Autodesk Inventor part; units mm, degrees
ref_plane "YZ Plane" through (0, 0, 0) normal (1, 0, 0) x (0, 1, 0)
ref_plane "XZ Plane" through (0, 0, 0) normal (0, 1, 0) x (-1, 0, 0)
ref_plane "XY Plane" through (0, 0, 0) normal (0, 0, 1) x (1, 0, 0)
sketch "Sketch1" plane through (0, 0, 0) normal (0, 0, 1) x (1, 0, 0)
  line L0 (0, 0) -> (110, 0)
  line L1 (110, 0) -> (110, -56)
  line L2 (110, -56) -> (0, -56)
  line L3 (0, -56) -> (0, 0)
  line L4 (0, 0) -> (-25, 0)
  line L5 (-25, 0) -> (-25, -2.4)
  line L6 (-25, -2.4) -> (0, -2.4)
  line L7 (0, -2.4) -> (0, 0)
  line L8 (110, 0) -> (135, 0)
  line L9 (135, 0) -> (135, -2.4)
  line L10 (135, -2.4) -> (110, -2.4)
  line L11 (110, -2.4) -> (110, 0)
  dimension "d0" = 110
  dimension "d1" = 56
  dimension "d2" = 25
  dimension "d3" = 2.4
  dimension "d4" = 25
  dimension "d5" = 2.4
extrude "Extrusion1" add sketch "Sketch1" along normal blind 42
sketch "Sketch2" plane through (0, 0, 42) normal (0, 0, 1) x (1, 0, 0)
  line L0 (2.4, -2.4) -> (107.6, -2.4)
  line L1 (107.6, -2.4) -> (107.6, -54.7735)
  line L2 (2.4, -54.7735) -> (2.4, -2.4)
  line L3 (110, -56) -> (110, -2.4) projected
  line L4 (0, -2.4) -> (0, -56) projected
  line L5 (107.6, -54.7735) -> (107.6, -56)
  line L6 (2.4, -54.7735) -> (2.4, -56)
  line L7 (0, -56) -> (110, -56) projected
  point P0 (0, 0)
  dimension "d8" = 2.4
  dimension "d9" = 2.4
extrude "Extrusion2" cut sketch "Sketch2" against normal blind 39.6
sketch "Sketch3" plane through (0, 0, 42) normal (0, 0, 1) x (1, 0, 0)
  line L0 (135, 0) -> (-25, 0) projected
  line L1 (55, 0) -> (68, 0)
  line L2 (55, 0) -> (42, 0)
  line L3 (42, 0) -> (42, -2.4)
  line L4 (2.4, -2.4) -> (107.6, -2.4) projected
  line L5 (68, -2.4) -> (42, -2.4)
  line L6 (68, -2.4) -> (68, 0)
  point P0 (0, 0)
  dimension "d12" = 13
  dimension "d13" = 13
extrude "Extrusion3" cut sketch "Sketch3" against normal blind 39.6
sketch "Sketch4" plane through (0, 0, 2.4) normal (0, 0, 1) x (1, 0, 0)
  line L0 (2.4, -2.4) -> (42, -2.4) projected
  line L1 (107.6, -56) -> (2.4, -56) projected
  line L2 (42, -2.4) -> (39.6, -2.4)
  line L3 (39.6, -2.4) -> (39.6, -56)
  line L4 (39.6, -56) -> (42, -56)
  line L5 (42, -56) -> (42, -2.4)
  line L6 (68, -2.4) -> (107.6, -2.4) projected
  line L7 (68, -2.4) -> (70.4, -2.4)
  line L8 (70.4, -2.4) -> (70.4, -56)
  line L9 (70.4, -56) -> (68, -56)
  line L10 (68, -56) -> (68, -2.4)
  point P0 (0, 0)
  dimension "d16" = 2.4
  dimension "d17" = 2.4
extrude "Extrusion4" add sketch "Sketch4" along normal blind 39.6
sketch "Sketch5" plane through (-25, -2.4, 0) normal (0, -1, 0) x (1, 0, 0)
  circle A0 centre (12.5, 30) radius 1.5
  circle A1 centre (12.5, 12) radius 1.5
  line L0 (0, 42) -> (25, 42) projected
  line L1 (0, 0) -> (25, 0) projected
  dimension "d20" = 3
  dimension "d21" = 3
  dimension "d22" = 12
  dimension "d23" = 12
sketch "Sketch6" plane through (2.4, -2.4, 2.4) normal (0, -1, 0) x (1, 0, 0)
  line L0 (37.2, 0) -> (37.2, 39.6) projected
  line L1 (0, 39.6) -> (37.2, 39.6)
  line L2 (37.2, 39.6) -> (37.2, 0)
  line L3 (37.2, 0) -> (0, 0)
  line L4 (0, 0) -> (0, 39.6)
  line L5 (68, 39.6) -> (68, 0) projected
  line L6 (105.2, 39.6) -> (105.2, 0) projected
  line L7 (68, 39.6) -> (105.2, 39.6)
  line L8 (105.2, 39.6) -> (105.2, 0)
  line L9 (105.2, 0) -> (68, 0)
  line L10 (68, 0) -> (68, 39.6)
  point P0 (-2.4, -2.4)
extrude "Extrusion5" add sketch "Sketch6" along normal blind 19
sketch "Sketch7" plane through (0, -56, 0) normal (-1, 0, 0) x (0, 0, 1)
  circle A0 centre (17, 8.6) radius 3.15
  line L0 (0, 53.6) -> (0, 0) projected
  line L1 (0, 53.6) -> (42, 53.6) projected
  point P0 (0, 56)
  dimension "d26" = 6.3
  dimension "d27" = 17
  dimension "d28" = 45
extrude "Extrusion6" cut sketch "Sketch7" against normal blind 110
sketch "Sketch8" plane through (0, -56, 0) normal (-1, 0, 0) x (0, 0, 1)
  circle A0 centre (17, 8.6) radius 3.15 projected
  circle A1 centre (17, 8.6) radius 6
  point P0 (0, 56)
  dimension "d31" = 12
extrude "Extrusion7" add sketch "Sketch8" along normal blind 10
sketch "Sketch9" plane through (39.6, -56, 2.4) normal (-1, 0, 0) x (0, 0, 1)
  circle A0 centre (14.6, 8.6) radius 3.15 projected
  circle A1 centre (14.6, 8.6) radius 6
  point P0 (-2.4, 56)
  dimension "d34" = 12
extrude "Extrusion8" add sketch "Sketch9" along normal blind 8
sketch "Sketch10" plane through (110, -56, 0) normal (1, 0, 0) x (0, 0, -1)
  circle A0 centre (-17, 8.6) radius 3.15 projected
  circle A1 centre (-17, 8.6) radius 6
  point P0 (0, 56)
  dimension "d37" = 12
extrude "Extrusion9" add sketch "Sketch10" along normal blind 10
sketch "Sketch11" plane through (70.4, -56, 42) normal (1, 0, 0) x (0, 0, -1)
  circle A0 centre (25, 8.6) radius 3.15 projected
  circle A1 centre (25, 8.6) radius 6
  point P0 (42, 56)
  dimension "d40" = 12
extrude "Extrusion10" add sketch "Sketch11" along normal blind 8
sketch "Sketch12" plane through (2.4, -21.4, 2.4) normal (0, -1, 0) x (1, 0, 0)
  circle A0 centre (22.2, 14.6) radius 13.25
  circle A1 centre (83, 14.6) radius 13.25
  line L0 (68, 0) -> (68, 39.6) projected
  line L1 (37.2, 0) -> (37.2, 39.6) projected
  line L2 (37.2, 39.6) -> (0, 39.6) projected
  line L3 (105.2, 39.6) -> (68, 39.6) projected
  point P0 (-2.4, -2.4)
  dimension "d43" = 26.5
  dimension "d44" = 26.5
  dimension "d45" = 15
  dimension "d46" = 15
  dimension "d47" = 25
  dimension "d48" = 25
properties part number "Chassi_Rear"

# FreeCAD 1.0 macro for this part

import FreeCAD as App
import Part
import Sketcher

doc = App.newDocument("Part")
body = doc.addObject("PartDesign::Body", "Body")

sketch1 = body.newObject("Sketcher::SketchObject", "Sketch")
sketch1.AttachmentSupport = (doc.getObject("XY_Plane"), [""])
sketch1.MapMode = "FlatFace"
sketch1.addGeometry([
    Part.LineSegment(App.Vector(-25, 0, 0), App.Vector(-25, -2.4, 0)),
    Part.LineSegment(App.Vector(-25, -2.4, 0), App.Vector(0, -2.4, 0)),
    Part.LineSegment(App.Vector(0, -2.4, 0), App.Vector(0, -56, 0)),
    Part.LineSegment(App.Vector(0, -56, 0), App.Vector(110, -56, 0)),
    Part.LineSegment(App.Vector(110, -56, 0), App.Vector(110, -2.4, 0)),
    Part.LineSegment(App.Vector(110, -2.4, 0), App.Vector(135, -2.4, 0)),
    Part.LineSegment(App.Vector(135, -2.4, 0), App.Vector(135, 0, 0)),
    Part.LineSegment(App.Vector(135, 0, 0), App.Vector(-25, 0, 0)),
], False)
sketch1.addConstraint([
    Sketcher.Constraint("Coincident", 0, 2, 1, 1),
    Sketcher.Constraint("Coincident", 1, 2, 2, 1),
    Sketcher.Constraint("Coincident", 2, 2, 3, 1),
    Sketcher.Constraint("Coincident", 3, 2, 4, 1),
    Sketcher.Constraint("Coincident", 4, 2, 5, 1),
    Sketcher.Constraint("Coincident", 5, 2, 6, 1),
    Sketcher.Constraint("Coincident", 6, 2, 7, 1),
    Sketcher.Constraint("Coincident", 7, 2, 0, 1),
    Sketcher.Constraint("Vertical", 0),
    Sketcher.Constraint("Horizontal", 1),
    Sketcher.Constraint("Vertical", 2),
    Sketcher.Constraint("Horizontal", 3),
    Sketcher.Constraint("Vertical", 4),
    Sketcher.Constraint("Horizontal", 5),
    Sketcher.Constraint("Vertical", 6),
    Sketcher.Constraint("Horizontal", 7),
    Sketcher.Constraint("PointOnObject", 1, 2, -2),
    Sketcher.Constraint("PointOnObject", 6, 2, -1),
    Sketcher.Constraint("Horizontal", 1, 2, 4, 2),
    Sketcher.Constraint("Equal", 1, 5),
    Sketcher.Constraint("DistanceX", 1, 1, 1, 2, 25.0),
    Sketcher.Constraint("DistanceX", 3, 1, 3, 2, 110.0),
    Sketcher.Constraint("DistanceY", 0, 2, 0, 1, 2.4),
    Sketcher.Constraint("DistanceY", 2, 2, -1, 1, 56.0),
])
pad1 = body.newObject("PartDesign::Pad", "Pad")
pad1.Profile = sketch1
pad1.Length = 42

sketch2 = body.newObject("Sketcher::SketchObject", "Sketch001")
sketch2.AttachmentSupport = (doc.getObject("XY_Plane"), [""])
sketch2.MapMode = "FlatFace"
sketch2.AttachmentOffset = App.Placement(App.Vector(0, 0, 42), App.Rotation())
sketch2.addGeometry([
    Part.LineSegment(App.Vector(108, -2, 0), App.Vector(2, -2, 0)),
    Part.LineSegment(App.Vector(2, -2, 0), App.Vector(2, -56, 0)),
    Part.LineSegment(App.Vector(2, -56, 0), App.Vector(108, -56, 0)),
    Part.LineSegment(App.Vector(108, -56, 0), App.Vector(108, -2, 0)),
], False)
sketch2.addConstraint([
    Sketcher.Constraint("Coincident", 0, 2, 1, 1),
    Sketcher.Constraint("Coincident", 1, 2, 2, 1),
    Sketcher.Constraint("Coincident", 2, 2, 3, 1),
    Sketcher.Constraint("Coincident", 3, 2, 0, 1),
    Sketcher.Constraint("Horizontal", 0),
    Sketcher.Constraint("Vertical", 1),
    Sketcher.Constraint("Horizontal", 2),
    Sketcher.Constraint("Vertical", 3),
    Sketcher.Constraint("DistanceX", -1, 1, 0, 2, 2.4),
    Sketcher.Constraint("DistanceY", 0, 2, -1, 1, 2.4),
    Sketcher.Constraint("DistanceX", 0, 2, 0, 1, 105.2),
    Sketcher.Constraint("DistanceY", 1, 2, 1, 1, 53.6),
])
pocket1 = body.newObject("PartDesign::Pocket", "Pocket")
pocket1.Profile = sketch2
pocket1.Length = 39.6

sketch3 = body.newObject("Sketcher::SketchObject", "Sketch002")
sketch3.AttachmentSupport = (doc.getObject("XY_Plane"), [""])
sketch3.MapMode = "FlatFace"
sketch3.AttachmentOffset = App.Placement(App.Vector(0, 0, 42), App.Rotation())
sketch3.addGeometry([
    Part.LineSegment(App.Vector(68, -2.4, 0), App.Vector(68, 0, 0)),
    Part.LineSegment(App.Vector(68, 0, 0), App.Vector(42, 0, 0)),
    Part.LineSegment(App.Vector(42, 0, 0), App.Vector(42, -2.4, 0)),
    Part.LineSegment(App.Vector(42, -2.4, 0), App.Vector(68, -2.4, 0)),
], False)
sketch3.addConstraint([
    Sketcher.Constraint("Coincident", 0, 2, 1, 1),
    Sketcher.Constraint("Coincident", 1, 2, 2, 1),
    Sketcher.Constraint("Coincident", 2, 2, 3, 1),
    Sketcher.Constraint("Coincident", 3, 2, 0, 1),
    Sketcher.Constraint("Vertical", 0),
    Sketcher.Constraint("Horizontal", 1),
    Sketcher.Constraint("Vertical", 2),
    Sketcher.Constraint("Horizontal", 3),
    Sketcher.Constraint("PointOnObject", 0, 2, -1),
    Sketcher.Constraint("DistanceX", 1, 2, 1, 1, 26.0),
    Sketcher.Constraint("DistanceY", 0, 1, 0, 2, 2.4),
    Sketcher.Constraint("DistanceX", -1, 1, 0, 2, 68.0),
])
pocket2 = body.newObject("PartDesign::Pocket", "Pocket001")
pocket2.Profile = sketch3
pocket2.Length = 39.6

sketch4 = body.newObject("Sketcher::SketchObject", "Sketch003")
sketch4.AttachmentSupport = (doc.getObject("XY_Plane"), [""])
sketch4.MapMode = "FlatFace"
sketch4.AttachmentOffset = App.Placement(App.Vector(0, 0, 2.4), App.Rotation())
sketch4.addGeometry([
    Part.LineSegment(App.Vector(68, -2.4, 0), App.Vector(68, -56, 0)),
    Part.LineSegment(App.Vector(68, -56, 0), App.Vector(70.4, -56, 0)),
    Part.LineSegment(App.Vector(70.4, -56, 0), App.Vector(70.4, -2.4, 0)),
    Part.LineSegment(App.Vector(70.4, -2.4, 0), App.Vector(68, -2.4, 0)),
    Part.LineSegment(App.Vector(42, -2.4, 0), App.Vector(39.6, -2.4, 0)),
    Part.LineSegment(App.Vector(39.6, -2.4, 0), App.Vector(39.6, -56, 0)),
    Part.LineSegment(App.Vector(39.6, -56, 0), App.Vector(42, -56, 0)),
    Part.LineSegment(App.Vector(42, -56, 0), App.Vector(42, -2.4, 0)),
], False)
sketch4.addConstraint([
    Sketcher.Constraint("Coincident", 0, 2, 1, 1),
    Sketcher.Constraint("Coincident", 1, 2, 2, 1),
    Sketcher.Constraint("Coincident", 2, 2, 3, 1),
    Sketcher.Constraint("Coincident", 3, 2, 0, 1),
    Sketcher.Constraint("Coincident", 4, 2, 5, 1),
    Sketcher.Constraint("Coincident", 5, 2, 6, 1),
    Sketcher.Constraint("Coincident", 6, 2, 7, 1),
    Sketcher.Constraint("Coincident", 7, 2, 4, 1),
    Sketcher.Constraint("Vertical", 0),
    Sketcher.Constraint("Horizontal", 1),
    Sketcher.Constraint("Vertical", 2),
    Sketcher.Constraint("Horizontal", 3),
    Sketcher.Constraint("Horizontal", 4),
    Sketcher.Constraint("Vertical", 5),
    Sketcher.Constraint("Horizontal", 6),
    Sketcher.Constraint("Vertical", 7),
    Sketcher.Constraint("Horizontal", 3, 2, 4, 2),
    Sketcher.Constraint("Horizontal", 1, 2, 5, 2),
    Sketcher.Constraint("Equal", 3, 4),
    Sketcher.Constraint("DistanceX", 1, 1, 1, 2, 2.4),
    Sketcher.Constraint("DistanceY", 2, 2, -1, 1, 2.4),
    Sketcher.Constraint("DistanceY", 0, 2, 0, 1, 53.6),
    Sketcher.Constraint("DistanceX", -1, 1, 0, 2, 68.0),
    Sketcher.Constraint("DistanceX", -1, 1, 6, 2, 42.0),
])
pad2 = body.newObject("PartDesign::Pad", "Pad001")
pad2.Profile = sketch4
pad2.Length = 39.6

sketch5 = body.newObject("Sketcher::SketchObject", "Sketch004")
sketch5.AttachmentSupport = (doc.getObject("XZ_Plane"), [""])
sketch5.MapMode = "FlatFace"
sketch5.AttachmentOffset = App.Placement(App.Vector(0, 0, 2.4), App.Rotation())
sketch5.addGeometry([
    Part.LineSegment(App.Vector(2, 2, 0), App.Vector(40, 2, 0)),
    Part.LineSegment(App.Vector(40, 2, 0), App.Vector(40, 42, 0)),
    Part.LineSegment(App.Vector(40, 42, 0), App.Vector(2, 42, 0)),
    Part.LineSegment(App.Vector(2, 42, 0), App.Vector(2, 2, 0)),
    Part.LineSegment(App.Vector(108, 42, 0), App.Vector(70, 42, 0)),
    Part.LineSegment(App.Vector(70, 42, 0), App.Vector(70, 2, 0)),
    Part.LineSegment(App.Vector(70, 2, 0), App.Vector(108, 2, 0)),
    Part.LineSegment(App.Vector(108, 2, 0), App.Vector(108, 42, 0)),
], False)
sketch5.addConstraint([
    Sketcher.Constraint("Coincident", 0, 2, 1, 1),
    Sketcher.Constraint("Coincident", 1, 2, 2, 1),
    Sketcher.Constraint("Coincident", 2, 2, 3, 1),
    Sketcher.Constraint("Coincident", 3, 2, 0, 1),
    Sketcher.Constraint("Coincident", 4, 2, 5, 1),
    Sketcher.Constraint("Coincident", 5, 2, 6, 1),
    Sketcher.Constraint("Coincident", 6, 2, 7, 1),
    Sketcher.Constraint("Coincident", 7, 2, 4, 1),
    Sketcher.Constraint("Horizontal", 0),
    Sketcher.Constraint("Vertical", 1),
    Sketcher.Constraint("Horizontal", 2),
    Sketcher.Constraint("Vertical", 3),
    Sketcher.Constraint("Horizontal", 4),
    Sketcher.Constraint("Vertical", 5),
    Sketcher.Constraint("Horizontal", 6),
    Sketcher.Constraint("Vertical", 7),
    Sketcher.Constraint("Horizontal", 2, 2, 4, 2),
    Sketcher.Constraint("Horizontal", 3, 2, 5, 2),
    Sketcher.Constraint("Equal", 2, 4),
    Sketcher.Constraint("DistanceX", 0, 1, 0, 2, 37.2),
    Sketcher.Constraint("DistanceY", 1, 1, 1, 2, 39.6),
    Sketcher.Constraint("DistanceY", -1, 1, 1, 2, 42.0),
    Sketcher.Constraint("DistanceX", 2, 2, 4, 2, 68.0),
    Sketcher.Constraint("DistanceX", -1, 1, 0, 2, 39.6),
])
pad3 = body.newObject("PartDesign::Pad", "Pad002")
pad3.Profile = sketch5
pad3.Length = 19

sketch6 = body.newObject("Sketcher::SketchObject", "Sketch005")
sketch6.AttachmentSupport = (doc.getObject("YZ_Plane"), [""])
sketch6.MapMode = "FlatFace"
sketch6.addGeometry(Part.Circle(App.Vector(-47.4, 17, 0), App.Vector(0, 0, 1), 3.1), False)
sketch6.addConstraint([
    Sketcher.Constraint("Diameter", 0, 6.3),
    Sketcher.Constraint("DistanceY", -1, 1, 0, 3, 17.0),
    Sketcher.Constraint("DistanceX", 0, 3, -1, 1, 47.4),
])
pocket3 = body.newObject("PartDesign::Pocket", "Pocket002")
pocket3.Profile = sketch6
pocket3.Length = 110
pocket3.Reversed = True

sketch7 = body.newObject("Sketcher::SketchObject", "Sketch006")
sketch7.AttachmentSupport = (doc.getObject("YZ_Plane"), [""])
sketch7.MapMode = "FlatFace"
sketch7.addGeometry([
    Part.Circle(App.Vector(-47.4, 17, 0), App.Vector(0, 0, 1), 6),
    Part.Circle(App.Vector(-47.4, 17, 0), App.Vector(0, 0, 1), 3.1),
], False)
sketch7.addConstraint([
    Sketcher.Constraint("Coincident", 1, 3, 0, 3),
    Sketcher.Constraint("Diameter", 0, 12.0),
    Sketcher.Constraint("Diameter", 1, 6.3),
    Sketcher.Constraint("DistanceY", -1, 1, 0, 3, 17.0),
    Sketcher.Constraint("DistanceX", 0, 3, -1, 1, 47.4),
])
pad4 = body.newObject("PartDesign::Pad", "Pad003")
pad4.Profile = sketch7
pad4.Length = 10
pad4.Reversed = True

sketch8 = body.newObject("Sketcher::SketchObject", "Sketch007")
sketch8.AttachmentSupport = (doc.getObject("YZ_Plane"), [""])
sketch8.MapMode = "FlatFace"
sketch8.AttachmentOffset = App.Placement(App.Vector(0, 0, 39.6), App.Rotation())
sketch8.addGeometry([
    Part.Circle(App.Vector(-47.4, 17, 0), App.Vector(0, 0, 1), 6),
    Part.Circle(App.Vector(-47.4, 17, 0), App.Vector(0, 0, 1), 3.1),
], False)
sketch8.addConstraint([
    Sketcher.Constraint("Coincident", 1, 3, 0, 3),
    Sketcher.Constraint("Diameter", 0, 12.0),
    Sketcher.Constraint("Diameter", 1, 6.3),
    Sketcher.Constraint("DistanceY", -1, 1, 0, 3, 17.0),
    Sketcher.Constraint("DistanceX", 0, 3, -1, 1, 47.4),
])
pad5 = body.newObject("PartDesign::Pad", "Pad004")
pad5.Profile = sketch8
pad5.Length = 8
pad5.Reversed = True

sketch9 = body.newObject("Sketcher::SketchObject", "Sketch008")
sketch9.AttachmentSupport = (doc.getObject("YZ_Plane"), [""])
sketch9.MapMode = "FlatFace"
sketch9.AttachmentOffset = App.Placement(App.Vector(0, 0, 110), App.Rotation())
sketch9.addGeometry([
    Part.Circle(App.Vector(-47.4, 17, 0), App.Vector(0, 0, 1), 6),
    Part.Circle(App.Vector(-47.4, 17, 0), App.Vector(0, 0, 1), 3.1),
], False)
sketch9.addConstraint([
    Sketcher.Constraint("Coincident", 1, 3, 0, 3),
    Sketcher.Constraint("Diameter", 0, 12.0),
    Sketcher.Constraint("Diameter", 1, 6.3),
    Sketcher.Constraint("DistanceY", -1, 1, 0, 3, 17.0),
    Sketcher.Constraint("DistanceX", 0, 3, -1, 1, 47.4),
])
pad6 = body.newObject("PartDesign::Pad", "Pad005")
pad6.Profile = sketch9
pad6.Length = 10

sketch10 = body.newObject("Sketcher::SketchObject", "Sketch009")
sketch10.AttachmentSupport = (doc.getObject("YZ_Plane"), [""])
sketch10.MapMode = "FlatFace"
sketch10.AttachmentOffset = App.Placement(App.Vector(0, 0, 70.4), App.Rotation())
sketch10.addGeometry([
    Part.Circle(App.Vector(-47.4, 17, 0), App.Vector(0, 0, 1), 6),
    Part.Circle(App.Vector(-47.4, 17, 0), App.Vector(0, 0, 1), 3.1),
], False)
sketch10.addConstraint([
    Sketcher.Constraint("Coincident", 1, 3, 0, 3),
    Sketcher.Constraint("Diameter", 0, 12.0),
    Sketcher.Constraint("Diameter", 1, 6.3),
    Sketcher.Constraint("DistanceY", -1, 1, 0, 3, 17.0),
    Sketcher.Constraint("DistanceX", 0, 3, -1, 1, 47.4),
])
pad7 = body.newObject("PartDesign::Pad", "Pad006")
pad7.Profile = sketch10
pad7.Length = 8

doc.recompute()
